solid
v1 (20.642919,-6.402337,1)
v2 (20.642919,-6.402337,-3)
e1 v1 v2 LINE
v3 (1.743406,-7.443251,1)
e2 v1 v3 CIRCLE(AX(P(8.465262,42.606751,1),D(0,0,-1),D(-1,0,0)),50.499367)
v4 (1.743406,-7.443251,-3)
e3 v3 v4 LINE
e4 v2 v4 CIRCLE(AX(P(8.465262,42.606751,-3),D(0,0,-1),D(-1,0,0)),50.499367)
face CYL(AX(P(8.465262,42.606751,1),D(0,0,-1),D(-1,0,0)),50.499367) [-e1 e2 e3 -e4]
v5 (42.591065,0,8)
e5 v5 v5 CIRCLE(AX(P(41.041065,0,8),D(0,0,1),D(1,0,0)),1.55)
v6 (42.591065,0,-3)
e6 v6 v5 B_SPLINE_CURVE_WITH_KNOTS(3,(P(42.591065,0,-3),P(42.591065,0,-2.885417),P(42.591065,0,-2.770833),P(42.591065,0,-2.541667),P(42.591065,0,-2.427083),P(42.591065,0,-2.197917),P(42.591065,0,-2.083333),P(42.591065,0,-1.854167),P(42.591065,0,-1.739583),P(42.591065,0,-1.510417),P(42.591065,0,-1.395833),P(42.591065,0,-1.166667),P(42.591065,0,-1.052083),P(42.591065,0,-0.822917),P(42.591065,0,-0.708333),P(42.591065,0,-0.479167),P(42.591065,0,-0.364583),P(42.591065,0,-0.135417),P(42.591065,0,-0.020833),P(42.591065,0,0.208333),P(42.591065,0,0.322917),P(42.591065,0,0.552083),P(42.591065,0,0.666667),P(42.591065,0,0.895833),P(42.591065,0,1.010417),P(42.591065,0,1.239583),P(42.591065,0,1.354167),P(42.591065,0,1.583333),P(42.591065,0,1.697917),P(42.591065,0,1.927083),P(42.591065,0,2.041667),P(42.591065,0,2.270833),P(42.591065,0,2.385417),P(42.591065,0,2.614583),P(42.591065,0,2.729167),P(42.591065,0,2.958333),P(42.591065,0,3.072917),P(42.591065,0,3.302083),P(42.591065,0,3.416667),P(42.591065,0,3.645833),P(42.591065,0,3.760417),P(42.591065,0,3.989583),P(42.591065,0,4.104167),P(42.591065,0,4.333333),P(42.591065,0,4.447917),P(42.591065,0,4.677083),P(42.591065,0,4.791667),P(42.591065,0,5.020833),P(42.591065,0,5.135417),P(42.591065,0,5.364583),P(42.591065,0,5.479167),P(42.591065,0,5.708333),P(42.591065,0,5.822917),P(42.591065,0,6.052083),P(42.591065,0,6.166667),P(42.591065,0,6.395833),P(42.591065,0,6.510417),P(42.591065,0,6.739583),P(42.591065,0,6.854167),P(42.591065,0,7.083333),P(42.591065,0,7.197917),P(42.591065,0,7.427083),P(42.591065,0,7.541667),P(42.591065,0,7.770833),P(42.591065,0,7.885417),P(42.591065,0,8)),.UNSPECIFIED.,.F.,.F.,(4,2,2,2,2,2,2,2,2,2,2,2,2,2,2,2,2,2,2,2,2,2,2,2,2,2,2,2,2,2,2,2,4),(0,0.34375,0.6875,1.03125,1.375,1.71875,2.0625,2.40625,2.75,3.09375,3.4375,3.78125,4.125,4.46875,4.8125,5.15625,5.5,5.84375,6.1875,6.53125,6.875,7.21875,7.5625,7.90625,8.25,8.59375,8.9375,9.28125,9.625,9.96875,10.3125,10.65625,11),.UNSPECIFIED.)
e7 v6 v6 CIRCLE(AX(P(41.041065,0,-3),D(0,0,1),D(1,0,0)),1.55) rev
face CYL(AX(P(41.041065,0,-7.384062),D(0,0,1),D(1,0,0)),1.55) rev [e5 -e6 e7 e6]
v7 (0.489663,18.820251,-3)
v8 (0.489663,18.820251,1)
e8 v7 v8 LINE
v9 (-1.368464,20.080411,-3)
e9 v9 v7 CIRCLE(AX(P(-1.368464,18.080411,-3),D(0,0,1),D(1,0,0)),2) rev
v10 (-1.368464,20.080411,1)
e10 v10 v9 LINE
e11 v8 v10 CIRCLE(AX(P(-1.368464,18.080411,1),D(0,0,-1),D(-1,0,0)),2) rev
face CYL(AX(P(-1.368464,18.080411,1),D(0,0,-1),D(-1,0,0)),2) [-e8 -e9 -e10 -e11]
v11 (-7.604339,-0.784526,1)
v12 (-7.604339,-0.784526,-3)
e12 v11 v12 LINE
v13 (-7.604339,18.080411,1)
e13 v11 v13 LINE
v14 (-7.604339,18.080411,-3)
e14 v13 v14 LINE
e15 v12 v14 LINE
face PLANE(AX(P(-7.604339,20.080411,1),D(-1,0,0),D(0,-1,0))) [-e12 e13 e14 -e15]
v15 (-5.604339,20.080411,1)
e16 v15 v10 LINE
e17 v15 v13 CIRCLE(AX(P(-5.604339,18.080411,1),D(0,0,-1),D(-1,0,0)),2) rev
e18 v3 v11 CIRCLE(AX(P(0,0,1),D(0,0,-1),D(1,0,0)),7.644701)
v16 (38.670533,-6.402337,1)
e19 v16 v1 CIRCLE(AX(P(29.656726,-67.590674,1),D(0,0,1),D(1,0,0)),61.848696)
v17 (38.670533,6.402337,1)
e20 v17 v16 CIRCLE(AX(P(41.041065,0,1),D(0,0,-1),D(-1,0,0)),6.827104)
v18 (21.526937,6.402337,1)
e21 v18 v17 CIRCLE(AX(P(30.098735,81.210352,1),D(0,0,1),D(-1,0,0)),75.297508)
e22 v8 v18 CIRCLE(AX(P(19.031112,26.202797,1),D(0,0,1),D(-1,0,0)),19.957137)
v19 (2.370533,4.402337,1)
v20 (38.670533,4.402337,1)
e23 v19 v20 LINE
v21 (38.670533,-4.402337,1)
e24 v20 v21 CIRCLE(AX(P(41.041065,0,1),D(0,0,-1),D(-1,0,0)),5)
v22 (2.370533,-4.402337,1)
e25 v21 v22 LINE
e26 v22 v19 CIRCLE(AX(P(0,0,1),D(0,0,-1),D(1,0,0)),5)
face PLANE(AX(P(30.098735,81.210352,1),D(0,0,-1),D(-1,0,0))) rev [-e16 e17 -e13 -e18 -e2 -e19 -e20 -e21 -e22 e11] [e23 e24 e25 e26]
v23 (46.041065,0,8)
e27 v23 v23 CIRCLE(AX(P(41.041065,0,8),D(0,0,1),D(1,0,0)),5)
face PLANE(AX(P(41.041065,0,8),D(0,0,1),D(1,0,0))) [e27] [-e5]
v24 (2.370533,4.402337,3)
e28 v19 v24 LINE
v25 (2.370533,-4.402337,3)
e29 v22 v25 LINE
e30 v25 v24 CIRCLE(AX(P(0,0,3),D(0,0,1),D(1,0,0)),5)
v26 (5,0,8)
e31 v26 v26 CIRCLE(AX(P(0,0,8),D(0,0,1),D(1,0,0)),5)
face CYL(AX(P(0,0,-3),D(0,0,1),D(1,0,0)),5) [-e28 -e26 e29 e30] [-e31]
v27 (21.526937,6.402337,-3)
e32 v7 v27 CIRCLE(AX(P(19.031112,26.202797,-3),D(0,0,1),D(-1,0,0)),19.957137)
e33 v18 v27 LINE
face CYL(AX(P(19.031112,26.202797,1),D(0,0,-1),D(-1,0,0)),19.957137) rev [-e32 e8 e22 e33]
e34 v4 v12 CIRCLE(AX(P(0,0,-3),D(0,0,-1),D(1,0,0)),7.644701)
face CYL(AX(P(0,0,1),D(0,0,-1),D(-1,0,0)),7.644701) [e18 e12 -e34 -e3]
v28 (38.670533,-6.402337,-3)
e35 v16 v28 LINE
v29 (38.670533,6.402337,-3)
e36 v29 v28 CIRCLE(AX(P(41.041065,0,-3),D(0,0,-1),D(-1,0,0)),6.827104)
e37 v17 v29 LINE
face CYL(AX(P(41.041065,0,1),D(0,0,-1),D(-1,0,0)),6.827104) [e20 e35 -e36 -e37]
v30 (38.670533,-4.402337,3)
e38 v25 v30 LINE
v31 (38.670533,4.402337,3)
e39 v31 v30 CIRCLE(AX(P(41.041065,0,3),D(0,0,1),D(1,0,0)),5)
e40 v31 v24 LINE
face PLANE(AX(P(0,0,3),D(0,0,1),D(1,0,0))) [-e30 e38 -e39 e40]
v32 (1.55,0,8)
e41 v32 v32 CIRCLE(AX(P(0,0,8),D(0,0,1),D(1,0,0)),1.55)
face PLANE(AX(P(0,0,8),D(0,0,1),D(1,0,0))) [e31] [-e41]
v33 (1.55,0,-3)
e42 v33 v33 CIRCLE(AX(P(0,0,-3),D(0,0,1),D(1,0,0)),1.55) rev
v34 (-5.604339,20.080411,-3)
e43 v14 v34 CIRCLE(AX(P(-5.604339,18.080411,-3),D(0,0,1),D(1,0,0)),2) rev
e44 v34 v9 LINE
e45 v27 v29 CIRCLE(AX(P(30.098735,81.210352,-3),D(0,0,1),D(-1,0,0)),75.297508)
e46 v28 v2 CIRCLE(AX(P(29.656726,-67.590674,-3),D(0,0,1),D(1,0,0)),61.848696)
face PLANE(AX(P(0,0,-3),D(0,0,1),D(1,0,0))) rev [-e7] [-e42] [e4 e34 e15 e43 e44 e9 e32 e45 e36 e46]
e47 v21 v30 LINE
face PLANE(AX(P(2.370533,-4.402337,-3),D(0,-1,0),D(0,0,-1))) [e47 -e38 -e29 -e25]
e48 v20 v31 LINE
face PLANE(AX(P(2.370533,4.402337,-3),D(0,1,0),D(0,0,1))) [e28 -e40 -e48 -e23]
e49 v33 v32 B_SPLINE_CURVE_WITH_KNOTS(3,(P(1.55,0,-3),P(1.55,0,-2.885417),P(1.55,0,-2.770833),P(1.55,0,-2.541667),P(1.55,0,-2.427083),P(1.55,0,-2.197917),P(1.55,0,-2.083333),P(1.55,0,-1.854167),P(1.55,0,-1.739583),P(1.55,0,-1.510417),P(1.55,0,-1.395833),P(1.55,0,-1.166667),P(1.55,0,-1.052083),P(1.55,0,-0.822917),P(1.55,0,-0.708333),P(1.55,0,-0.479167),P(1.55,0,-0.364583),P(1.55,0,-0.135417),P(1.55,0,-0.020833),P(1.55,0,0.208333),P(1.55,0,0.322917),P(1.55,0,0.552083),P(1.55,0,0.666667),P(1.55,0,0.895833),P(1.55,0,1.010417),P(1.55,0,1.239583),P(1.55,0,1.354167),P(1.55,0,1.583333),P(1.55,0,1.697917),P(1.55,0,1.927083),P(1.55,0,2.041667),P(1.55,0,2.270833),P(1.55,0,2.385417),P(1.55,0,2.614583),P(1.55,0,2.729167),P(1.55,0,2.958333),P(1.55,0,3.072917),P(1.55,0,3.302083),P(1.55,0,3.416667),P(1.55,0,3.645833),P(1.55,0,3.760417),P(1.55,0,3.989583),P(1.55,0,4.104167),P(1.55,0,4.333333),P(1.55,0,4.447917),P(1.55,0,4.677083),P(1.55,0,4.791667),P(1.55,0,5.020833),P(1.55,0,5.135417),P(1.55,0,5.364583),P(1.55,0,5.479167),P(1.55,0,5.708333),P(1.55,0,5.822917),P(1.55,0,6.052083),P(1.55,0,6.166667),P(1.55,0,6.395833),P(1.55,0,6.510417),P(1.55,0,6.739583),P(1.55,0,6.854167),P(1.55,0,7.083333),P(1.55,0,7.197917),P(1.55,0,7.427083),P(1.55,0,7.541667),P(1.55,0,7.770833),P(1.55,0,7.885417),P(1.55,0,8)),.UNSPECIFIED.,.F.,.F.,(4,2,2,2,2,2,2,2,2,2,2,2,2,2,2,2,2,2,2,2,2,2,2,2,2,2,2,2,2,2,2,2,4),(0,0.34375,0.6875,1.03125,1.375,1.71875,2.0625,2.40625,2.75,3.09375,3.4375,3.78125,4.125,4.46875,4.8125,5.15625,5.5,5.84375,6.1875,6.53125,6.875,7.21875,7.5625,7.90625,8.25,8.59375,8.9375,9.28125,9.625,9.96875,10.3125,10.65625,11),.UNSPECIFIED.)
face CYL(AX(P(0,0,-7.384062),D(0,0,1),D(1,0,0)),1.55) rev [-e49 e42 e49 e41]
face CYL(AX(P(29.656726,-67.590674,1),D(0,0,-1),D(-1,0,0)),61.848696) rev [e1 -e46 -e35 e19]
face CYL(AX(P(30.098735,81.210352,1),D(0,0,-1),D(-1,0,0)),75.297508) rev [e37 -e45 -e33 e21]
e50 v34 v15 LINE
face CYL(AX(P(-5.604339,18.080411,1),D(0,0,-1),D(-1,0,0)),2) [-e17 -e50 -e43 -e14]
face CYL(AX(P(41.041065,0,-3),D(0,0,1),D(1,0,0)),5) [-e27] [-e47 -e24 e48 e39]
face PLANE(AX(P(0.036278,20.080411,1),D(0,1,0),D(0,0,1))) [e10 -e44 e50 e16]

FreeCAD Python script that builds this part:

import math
import FreeCAD as App
import Part
import Sketcher


def edges_at(feature, points):
    """Names of the edges that pass closest to the given points."""
    edges = feature.Shape.Edges
    near = lambda p: min(range(len(edges)), key=lambda i: edges[i].distToShape(Part.Vertex(*p))[0])
    return sorted({f"Edge{near(p) + 1}" for p in points})

doc = App.newDocument("Part")
params = doc.addObject("Spreadsheet::Sheet", "Params")
for row, (alias, value) in enumerate([
    ("sketch1_radius", "5 mm"),
    ("sketch1_width", "36.3 mm"),
    ("pad1_length", "3 mm"),
    ("pad1_length2", "3 mm"),
    ("sketch2_diameter", "3.1 mm"),
    ("pocket1_length", "6 mm"),
    ("sketch3_diameter", "10 mm"),
    ("sketch3_diameter2", "3.1 mm"),
    ("pad2_length", "5 mm"),
    ("sketch4_radius", "5 mm"),
    ("sketch4_width", "36.3 mm"),
    ("pad3_length", "4 mm"),
    ("fillet_radius", "2 mm"),
], start=1):
    params.set(f"A{row}", alias)
    params.set(f"B{row}", "=" + value)
    params.setAlias(f"B{row}", alias)

body = doc.addObject("PartDesign::Body", "Body")

sketch1 = body.newObject("Sketcher::SketchObject", "Sketch")
sketch1.AttachmentSupport = (doc.getObject("XY_Plane"), [""])
sketch1.MapMode = "FlatFace"
sketch1.addGeometry(Part.LineSegment(App.Vector(39, 4, 0), App.Vector(2, 4, 0)), False)
sketch1.addGeometry(Part.ArcOfCircle(Part.Circle(App.Vector(0, 0, 0), App.Vector(0, 0, 1), 5), math.radians(62), math.radians(298)), False)
sketch1.addGeometry(Part.LineSegment(App.Vector(2, -4, 0), App.Vector(39, -4, 0)), False)
sketch1.addGeometry(Part.ArcOfCircle(Part.Circle(App.Vector(41, 0, 0), App.Vector(0, 0, 1), 5), math.radians(-118), math.radians(118)), False)
sketch1.addConstraint(Sketcher.Constraint("Coincident", 0, 2, 1, 1))
sketch1.addConstraint(Sketcher.Constraint("Coincident", 1, 2, 2, 1))
sketch1.addConstraint(Sketcher.Constraint("Coincident", 2, 2, 3, 1))
sketch1.addConstraint(Sketcher.Constraint("Coincident", 3, 2, 0, 1))
sketch1.addConstraint(Sketcher.Constraint("Horizontal", 0))
sketch1.addConstraint(Sketcher.Constraint("Horizontal", 2))
sketch1.addConstraint(Sketcher.Constraint("Coincident", 1, 3, -1, 1))
sketch1.addConstraint(Sketcher.Constraint("Equal", 1, 3))
sketch1.addConstraint(Sketcher.Constraint("Symmetric", 2, 2, 3, 2, -1))
sketch1.addConstraint(Sketcher.Constraint("Radius", 1, 5.0))
sketch1.addConstraint(Sketcher.Constraint("DistanceX", 0, 2, 0, 1, 36.3))
sketch1.addConstraint(Sketcher.Constraint("DistanceX", -1, 1, 3, 3, 41.041065))
sketch1.setExpression("Constraints[9]", "Params.sketch1_radius")
sketch1.setExpression("Constraints[10]", "Params.sketch1_width")
pad1 = body.newObject("PartDesign::Pad", "Pad")
pad1.Profile = sketch1
pad1.Type = "TwoLengths"
pad1.setExpression("Length", "Params.pad1_length")
pad1.setExpression("Length2", "Params.pad1_length2")

sketch2 = body.newObject("Sketcher::SketchObject", "Sketch001")
sketch2.AttachmentSupport = (doc.getObject("XY_Plane"), [""])
sketch2.MapMode = "FlatFace"
sketch2.AttachmentOffset = App.Placement(App.Vector(0, 0, 3), App.Rotation())
sketch2.addGeometry(Part.Circle(App.Vector(0, 0, 0), App.Vector(0, 0, 1), 1.6), False)
sketch2.addGeometry(Part.Circle(App.Vector(41, 0, 0), App.Vector(0, 0, 1), 1.6), False)
sketch2.addConstraint(Sketcher.Constraint("Coincident", 0, 3, -1, 1))
sketch2.addConstraint(Sketcher.Constraint("Equal", 0, 1))
sketch2.addConstraint(Sketcher.Constraint("PointOnObject", 1, 3, -1))
sketch2.addConstraint(Sketcher.Constraint("Diameter", 0, 3.1))
sketch2.addConstraint(Sketcher.Constraint("DistanceX", -1, 1, 1, 3, 41.041065))
sketch2.setExpression("Constraints[3]", "Params.sketch2_diameter")
pocket1 = body.newObject("PartDesign::Pocket", "Pocket")
pocket1.Profile = sketch2
pocket1.setExpression("Length", "Params.pocket1_length")

sketch3 = body.newObject("Sketcher::SketchObject", "Sketch002")
sketch3.AttachmentSupport = (doc.getObject("XY_Plane"), [""])
sketch3.MapMode = "FlatFace"
sketch3.AttachmentOffset = App.Placement(App.Vector(0, 0, 3), App.Rotation())
sketch3.addGeometry(Part.Circle(App.Vector(0, 0, 0), App.Vector(0, 0, 1), 5), False)
sketch3.addGeometry(Part.Circle(App.Vector(0, 0, 0), App.Vector(0, 0, 1), 1.6), False)
sketch3.addGeometry(Part.Circle(App.Vector(41, 0, 0), App.Vector(0, 0, 1), 5), False)
sketch3.addGeometry(Part.Circle(App.Vector(41, 0, 0), App.Vector(0, 0, 1), 1.6), False)
sketch3.addConstraint(Sketcher.Constraint("Coincident", 0, 3, -1, 1))
sketch3.addConstraint(Sketcher.Constraint("Coincident", 1, 3, -1, 1))
sketch3.addConstraint(Sketcher.Constraint("Coincident", 3, 3, 2, 3))
sketch3.addConstraint(Sketcher.Constraint("Equal", 0, 2))
sketch3.addConstraint(Sketcher.Constraint("Equal", 1, 3))
sketch3.addConstraint(Sketcher.Constraint("PointOnObject", 2, 3, -1))
sketch3.addConstraint(Sketcher.Constraint("Diameter", 0, 10.0))
sketch3.addConstraint(Sketcher.Constraint("Diameter", 1, 3.1))
sketch3.addConstraint(Sketcher.Constraint("DistanceX", -1, 1, 2, 3, 41.041065))
sketch3.setExpression("Constraints[6]", "Params.sketch3_diameter")
sketch3.setExpression("Constraints[7]", "Params.sketch3_diameter2")
pad2 = body.newObject("PartDesign::Pad", "Pad001")
pad2.Profile = sketch3
pad2.setExpression("Length", "Params.pad2_length")

sketch4 = body.newObject("Sketcher::SketchObject", "Sketch003")
sketch4.AttachmentSupport = (doc.getObject("XY_Plane"), [""])
sketch4.MapMode = "FlatFace"
sketch4.AttachmentOffset = App.Placement(App.Vector(0, 0, -3), App.Rotation())
sketch4.addGeometry(Part.LineSegment(App.Vector(-8, 20, 0), App.Vector(0, 20, 0)), False)
sketch4.addGeometry(Part.ArcOfCircle(Part.Circle(App.Vector(19, 26, 0), App.Vector(0, 0, 1), 20), math.radians(-162), math.radians(-83)), False)
sketch4.addGeometry(Part.ArcOfCircle(Part.Circle(App.Vector(30, 81, 0), App.Vector(0, 0, 1), 75), math.radians(-96.54), math.radians(-83.46)), False)
sketch4.addGeometry(Part.ArcOfCircle(Part.Circle(App.Vector(41, 0, 0), App.Vector(0, 0, 1), 7), math.radians(-110), math.radians(110)), False)
sketch4.addGeometry(Part.ArcOfCircle(Part.Circle(App.Vector(30, -68, 0), App.Vector(0, 0, 1), 62), math.radians(81.62), math.radians(98.38)), False)
sketch4.addGeometry(Part.ArcOfCircle(Part.Circle(App.Vector(8, 43, 0), App.Vector(0, 0, 1), 50), math.radians(-98), math.radians(-76)), False)
sketch4.addGeometry(Part.ArcOfCircle(Part.Circle(App.Vector(0, 0, 0), App.Vector(0, 0, 1), 8), math.radians(-174), math.radians(-77)), False)
sketch4.addGeometry(Part.LineSegment(App.Vector(-8, -1, 0), App.Vector(-8, 20, 0)), False)
sketch4.addGeometry(Part.LineSegment(App.Vector(39, 4, 0), App.Vector(2, 4, 0)), False)
sketch4.addGeometry(Part.ArcOfCircle(Part.Circle(App.Vector(0, 0, 0), App.Vector(0, 0, 1), 5), math.radians(62), math.radians(298)), False)
sketch4.addGeometry(Part.LineSegment(App.Vector(2, -4, 0), App.Vector(39, -4, 0)), False)
sketch4.addGeometry(Part.ArcOfCircle(Part.Circle(App.Vector(41, 0, 0), App.Vector(0, 0, 1), 5), math.radians(-118), math.radians(118)), False)
sketch4.addConstraint(Sketcher.Constraint("Coincident", 0, 2, 1, 1))
sketch4.addConstraint(Sketcher.Constraint("Coincident", 1, 2, 2, 1))
sketch4.addConstraint(Sketcher.Constraint("Coincident", 2, 2, 3, 2))
sketch4.addConstraint(Sketcher.Constraint("Coincident", 3, 1, 4, 1))
sketch4.addConstraint(Sketcher.Constraint("Coincident", 4, 2, 5, 2))
sketch4.addConstraint(Sketcher.Constraint("Coincident", 5, 1, 6, 2))
sketch4.addConstraint(Sketcher.Constraint("Coincident", 6, 1, 7, 1))
sketch4.addConstraint(Sketcher.Constraint("Coincident", 7, 2, 0, 1))
sketch4.addConstraint(Sketcher.Constraint("Coincident", 8, 2, 9, 1))
sketch4.addConstraint(Sketcher.Constraint("Coincident", 9, 2, 10, 1))
sketch4.addConstraint(Sketcher.Constraint("Coincident", 10, 2, 11, 1))
sketch4.addConstraint(Sketcher.Constraint("Coincident", 11, 2, 8, 1))
sketch4.addConstraint(Sketcher.Constraint("Horizontal", 0))
sketch4.addConstraint(Sketcher.Constraint("Vertical", 7))
sketch4.addConstraint(Sketcher.Constraint("Horizontal", 8))
sketch4.addConstraint(Sketcher.Constraint("Horizontal", 10))
sketch4.addConstraint(Sketcher.Constraint("Coincident", 6, 3, -1, 1))
sketch4.addConstraint(Sketcher.Constraint("Coincident", 9, 3, -1, 1))
sketch4.addConstraint(Sketcher.Constraint("Coincident", 11, 3, 3, 3))
sketch4.addConstraint(Sketcher.Constraint("Equal", 9, 11))
sketch4.addConstraint(Sketcher.Constraint("Symmetric", 2, 2, 3, 1, -1))
sketch4.addConstraint(Sketcher.Constraint("Horizontal", 1, 2, 2, 2))
sketch4.addConstraint(Sketcher.Constraint("Horizontal", 3, 1, 4, 2))
sketch4.addConstraint(Sketcher.Constraint("Vertical", 8, 2, 9, 2))
sketch4.addConstraint(Sketcher.Constraint("Vertical", 3, 1, 10, 2))
sketch4.addConstraint(Sketcher.Constraint("Radius", 9, 5.0))
sketch4.addConstraint(Sketcher.Constraint("DistanceX", 8, 2, 8, 1, 36.3))
sketch4.addConstraint(Sketcher.Constraint("DistanceY", 3, 1, 10, 2, 2.0))
sketch4.addConstraint(Sketcher.Constraint("Radius", 6, 7.644701))
sketch4.addConstraint(Sketcher.Constraint("Radius", 1, 19.957137))
sketch4.addConstraint(Sketcher.Constraint("Radius", 2, 75.297508))
sketch4.addConstraint(Sketcher.Constraint("Radius", 3, 6.827104))
sketch4.addConstraint(Sketcher.Constraint("Radius", 4, 61.848696))
sketch4.addConstraint(Sketcher.Constraint("Radius", 5, 50.499367))
sketch4.addConstraint(Sketcher.Constraint("DistanceY", 5, 3, 2, 3, 38.6036))
sketch4.addConstraint(Sketcher.Constraint("DistanceX", 0, 1, 0, 2, 7.640618))
sketch4.addConstraint(Sketcher.Constraint("DistanceY", 7, 1, 7, 2, 20.864936))
sketch4.addConstraint(Sketcher.Constraint("DistanceY", -1, 1, 2, 3, 81.210352))
sketch4.addConstraint(Sketcher.Constraint("DistanceX", -1, 1, 5, 3, 8.465262))
sketch4.addConstraint(Sketcher.Constraint("DistanceX", -1, 1, 0, 2, 0.036278))
sketch4.setExpression("Constraints[25]", "Params.sketch4_radius")
sketch4.setExpression("Constraints[26]", "Params.sketch4_width")
pad3 = body.newObject("PartDesign::Pad", "Pad002")
pad3.Profile = sketch4
pad3.setExpression("Length", "Params.pad3_length")
doc.recompute()

fillet = body.newObject("PartDesign::Fillet", "Fillet")
fillet.Base = (pad3, edges_at(pad3, [(0.036, 20.08, -1), (-7.604, 20.08, -1)]))
fillet.setExpression("Radius", "Params.fillet_radius")

doc.recompute()
